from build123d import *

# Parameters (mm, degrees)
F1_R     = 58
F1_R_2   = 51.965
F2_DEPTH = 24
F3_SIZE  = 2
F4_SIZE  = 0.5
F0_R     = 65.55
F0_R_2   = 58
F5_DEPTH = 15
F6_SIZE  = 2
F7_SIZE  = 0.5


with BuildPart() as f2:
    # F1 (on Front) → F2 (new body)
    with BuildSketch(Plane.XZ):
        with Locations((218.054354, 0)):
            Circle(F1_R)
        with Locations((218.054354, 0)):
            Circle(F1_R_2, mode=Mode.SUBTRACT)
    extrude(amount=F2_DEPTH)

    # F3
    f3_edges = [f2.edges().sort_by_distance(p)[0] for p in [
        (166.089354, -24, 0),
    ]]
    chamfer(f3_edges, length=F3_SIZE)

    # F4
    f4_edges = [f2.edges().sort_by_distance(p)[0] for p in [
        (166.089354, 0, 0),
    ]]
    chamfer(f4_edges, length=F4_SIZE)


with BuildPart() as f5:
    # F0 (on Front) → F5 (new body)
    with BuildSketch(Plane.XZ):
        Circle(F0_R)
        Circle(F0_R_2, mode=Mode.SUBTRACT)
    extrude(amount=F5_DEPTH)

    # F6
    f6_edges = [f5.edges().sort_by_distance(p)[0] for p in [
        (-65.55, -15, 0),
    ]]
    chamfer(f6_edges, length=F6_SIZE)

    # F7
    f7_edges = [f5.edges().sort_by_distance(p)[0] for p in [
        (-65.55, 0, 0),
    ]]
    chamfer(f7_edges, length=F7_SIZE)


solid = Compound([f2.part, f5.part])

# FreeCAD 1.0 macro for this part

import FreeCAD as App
import Part
import Sketcher
Q = App.Units.Quantity


def edges_at(feature, points):
    """Names of the edges that pass closest to the given points."""
    edges = feature.Shape.Edges
    near = lambda p: min(range(len(edges)), key=lambda i: edges[i].distToShape(Part.Vertex(*p))[0])
    return sorted({f"Edge{near(p) + 1}" for p in points})

doc = App.newDocument("Part")
body = doc.addObject("PartDesign::Body", "Body")

sketch1 = body.newObject("Sketcher::SketchObject", "Sketch")
sketch1.AttachmentSupport = (doc.getObject("XZ_Plane"), [""])
sketch1.MapMode = "FlatFace"
sketch1.addGeometry(Part.Circle(App.Vector(218, 0, 0), App.Vector(0, 0, 1), 58), False)
sketch1.addGeometry(Part.Circle(App.Vector(218, 0, 0), App.Vector(0, 0, 1), 52), False)
sketch1.addConstraint(Sketcher.Constraint("Coincident", 1, 3, 0, 3))
sketch1.addConstraint(Sketcher.Constraint("PointOnObject", 0, 3, -1))
sketch1.addConstraint(Sketcher.Constraint("Diameter", 0, Q("116 mm")))
sketch1.addConstraint(Sketcher.Constraint("Diameter", 1, Q("103.93 mm")))
sketch1.addConstraint(Sketcher.Constraint("DistanceX", -1, 1, 0, 3, Q("218.054354 mm")))
pad1 = body.newObject("PartDesign::Pad", "Pad")
pad1.Profile = sketch1
pad1.Length = 24
doc.recompute()

chamfer = body.newObject("PartDesign::Chamfer", "Chamfer")
chamfer.Base = (pad1, edges_at(pad1, [(166.089, -24, 0)]))
chamfer.Size = 2
doc.recompute()

chamfer2 = body.newObject("PartDesign::Chamfer", "Chamfer001")
chamfer2.Base = (chamfer, edges_at(chamfer, [(166.089, 0, 0)]))
chamfer2.Size = 0.5
body2 = doc.addObject("PartDesign::Body", "Body001")

sketch2 = body2.newObject("Sketcher::SketchObject", "Sketch001")
sketch2.AttachmentSupport = (doc.getObject("XZ_Plane001"), [""])
sketch2.MapMode = "FlatFace"
sketch2.addGeometry(Part.Circle(App.Vector(0, 0, 0), App.Vector(0, 0, 1), 66), False)
sketch2.addGeometry(Part.Circle(App.Vector(0, 0, 0), App.Vector(0, 0, 1), 58), False)
sketch2.addConstraint(Sketcher.Constraint("Coincident", 0, 3, -1, 1))
sketch2.addConstraint(Sketcher.Constraint("Coincident", 1, 3, -1, 1))
sketch2.addConstraint(Sketcher.Constraint("Diameter", 1, Q("116 mm")))
sketch2.addConstraint(Sketcher.Constraint("Diameter", 0, Q("131.1 mm")))
pad2 = body2.newObject("PartDesign::Pad", "Pad001")
pad2.Profile = sketch2
pad2.Length = 15
doc.recompute()

chamfer3 = body2.newObject("PartDesign::Chamfer", "Chamfer002")
chamfer3.Base = (pad2, edges_at(pad2, [(-65.55, -15, 0)]))
chamfer3.Size = 2
doc.recompute()

chamfer4 = body2.newObject("PartDesign::Chamfer", "Chamfer003")
chamfer4.Base = (chamfer3, edges_at(chamfer3, [(-65.55, 0, 0)]))
chamfer4.Size = 0.5

doc.recompute()
